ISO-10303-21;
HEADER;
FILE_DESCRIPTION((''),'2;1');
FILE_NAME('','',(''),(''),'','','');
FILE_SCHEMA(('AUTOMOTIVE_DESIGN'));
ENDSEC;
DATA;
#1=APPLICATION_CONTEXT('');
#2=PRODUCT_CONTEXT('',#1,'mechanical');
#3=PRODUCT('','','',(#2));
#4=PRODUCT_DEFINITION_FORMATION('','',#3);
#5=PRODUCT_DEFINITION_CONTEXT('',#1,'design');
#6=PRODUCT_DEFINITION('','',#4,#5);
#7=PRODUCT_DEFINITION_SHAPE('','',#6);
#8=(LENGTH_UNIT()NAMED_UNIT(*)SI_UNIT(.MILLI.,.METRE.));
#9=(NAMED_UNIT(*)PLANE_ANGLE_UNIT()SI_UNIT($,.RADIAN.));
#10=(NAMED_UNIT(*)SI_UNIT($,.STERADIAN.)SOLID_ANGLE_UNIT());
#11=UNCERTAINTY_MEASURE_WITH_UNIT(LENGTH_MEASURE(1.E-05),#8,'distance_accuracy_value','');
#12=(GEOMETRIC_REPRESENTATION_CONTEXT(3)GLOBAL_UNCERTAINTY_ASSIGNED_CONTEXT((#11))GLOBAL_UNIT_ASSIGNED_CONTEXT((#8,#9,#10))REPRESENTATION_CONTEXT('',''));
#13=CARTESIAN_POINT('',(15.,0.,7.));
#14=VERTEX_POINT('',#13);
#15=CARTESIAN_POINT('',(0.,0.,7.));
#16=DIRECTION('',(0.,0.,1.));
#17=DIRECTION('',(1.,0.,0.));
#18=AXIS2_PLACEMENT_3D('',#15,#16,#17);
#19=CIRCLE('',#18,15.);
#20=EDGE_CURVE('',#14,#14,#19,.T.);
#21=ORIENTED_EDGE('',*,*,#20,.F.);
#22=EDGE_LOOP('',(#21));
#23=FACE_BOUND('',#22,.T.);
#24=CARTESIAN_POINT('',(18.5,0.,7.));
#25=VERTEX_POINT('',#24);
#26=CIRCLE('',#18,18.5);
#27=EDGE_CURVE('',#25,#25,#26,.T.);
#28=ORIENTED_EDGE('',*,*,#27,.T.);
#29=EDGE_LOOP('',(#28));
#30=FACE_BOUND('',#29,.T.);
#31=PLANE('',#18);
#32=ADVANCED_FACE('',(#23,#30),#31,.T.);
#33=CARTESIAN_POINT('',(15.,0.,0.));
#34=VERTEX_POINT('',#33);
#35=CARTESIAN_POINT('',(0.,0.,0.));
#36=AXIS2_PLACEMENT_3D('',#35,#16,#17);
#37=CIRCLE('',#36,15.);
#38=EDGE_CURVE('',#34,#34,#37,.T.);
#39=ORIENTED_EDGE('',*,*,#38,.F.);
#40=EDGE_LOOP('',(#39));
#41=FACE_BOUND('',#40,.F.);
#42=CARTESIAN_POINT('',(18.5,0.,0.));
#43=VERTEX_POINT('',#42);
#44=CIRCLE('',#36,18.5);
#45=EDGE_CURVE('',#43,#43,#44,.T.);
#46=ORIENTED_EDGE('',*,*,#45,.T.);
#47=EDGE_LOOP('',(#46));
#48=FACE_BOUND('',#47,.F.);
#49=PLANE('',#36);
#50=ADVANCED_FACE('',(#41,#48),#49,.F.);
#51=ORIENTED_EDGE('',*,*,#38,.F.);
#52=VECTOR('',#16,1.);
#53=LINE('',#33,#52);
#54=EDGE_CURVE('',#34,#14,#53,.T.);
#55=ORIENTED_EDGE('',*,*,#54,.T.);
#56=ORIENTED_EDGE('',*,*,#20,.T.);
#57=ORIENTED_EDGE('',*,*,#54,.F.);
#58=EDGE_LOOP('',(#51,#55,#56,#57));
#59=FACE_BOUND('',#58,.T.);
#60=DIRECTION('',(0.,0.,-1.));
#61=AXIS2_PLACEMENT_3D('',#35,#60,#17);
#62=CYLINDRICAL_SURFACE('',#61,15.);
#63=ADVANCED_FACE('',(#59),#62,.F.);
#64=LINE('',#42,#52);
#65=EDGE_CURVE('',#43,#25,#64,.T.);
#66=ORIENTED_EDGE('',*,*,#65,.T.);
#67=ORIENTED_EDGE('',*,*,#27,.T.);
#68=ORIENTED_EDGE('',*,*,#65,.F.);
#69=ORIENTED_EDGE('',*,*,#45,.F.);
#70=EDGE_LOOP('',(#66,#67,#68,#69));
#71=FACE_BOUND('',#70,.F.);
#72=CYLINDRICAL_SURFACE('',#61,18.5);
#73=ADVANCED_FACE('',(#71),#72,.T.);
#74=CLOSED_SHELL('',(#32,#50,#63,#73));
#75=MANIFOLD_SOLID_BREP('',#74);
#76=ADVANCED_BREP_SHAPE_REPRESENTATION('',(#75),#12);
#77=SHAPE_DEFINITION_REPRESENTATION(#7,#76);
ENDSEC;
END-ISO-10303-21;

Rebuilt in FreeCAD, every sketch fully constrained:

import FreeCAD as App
import Part
import Sketcher
from FreeCAD import Vector

doc = App.newDocument("Part")
params = doc.addObject("Spreadsheet::Sheet", "Params")
for row, (alias, value) in enumerate([
    ("sketch1_diameter", "37 mm"),
    ("sketch1_diameter2", "30 mm"),
    ("pad1_length", "7 mm"),
], start=1):
    params.set(f"A{row}", alias)
    params.set(f"B{row}", "=" + value)
    params.setAlias(f"B{row}", alias)

body = doc.addObject("PartDesign::Body", "Body")

# Sketch on XY plane
sketch1 = body.newObject("Sketcher::SketchObject", "Sketch")
sketch1.AttachmentSupport = (doc.getObject("XY_Plane"), [""])
sketch1.MapMode = "FlatFace"
sketch1.addGeometry(Part.Circle(Vector(0, 0, 0), Vector(0, 0, 1), 18), False)
sketch1.addGeometry(Part.Circle(Vector(0, 0, 0), Vector(0, 0, 1), 15), False)
sketch1.addConstraint(Sketcher.Constraint("Coincident", 0, 3, -1, 1))
sketch1.addConstraint(Sketcher.Constraint("Coincident", 1, 3, -1, 1))
sketch1.addConstraint(Sketcher.Constraint("Diameter", 0, 37.0))
sketch1.addConstraint(Sketcher.Constraint("Diameter", 1, 30.0))
sketch1.setExpression("Constraints[2]", "Params.sketch1_diameter")
sketch1.setExpression("Constraints[3]", "Params.sketch1_diameter2")
pad1 = body.newObject("PartDesign::Pad", "Pad")
pad1.Profile = sketch1
pad1.setExpression("Length", "Params.pad1_length")

doc.recompute()
